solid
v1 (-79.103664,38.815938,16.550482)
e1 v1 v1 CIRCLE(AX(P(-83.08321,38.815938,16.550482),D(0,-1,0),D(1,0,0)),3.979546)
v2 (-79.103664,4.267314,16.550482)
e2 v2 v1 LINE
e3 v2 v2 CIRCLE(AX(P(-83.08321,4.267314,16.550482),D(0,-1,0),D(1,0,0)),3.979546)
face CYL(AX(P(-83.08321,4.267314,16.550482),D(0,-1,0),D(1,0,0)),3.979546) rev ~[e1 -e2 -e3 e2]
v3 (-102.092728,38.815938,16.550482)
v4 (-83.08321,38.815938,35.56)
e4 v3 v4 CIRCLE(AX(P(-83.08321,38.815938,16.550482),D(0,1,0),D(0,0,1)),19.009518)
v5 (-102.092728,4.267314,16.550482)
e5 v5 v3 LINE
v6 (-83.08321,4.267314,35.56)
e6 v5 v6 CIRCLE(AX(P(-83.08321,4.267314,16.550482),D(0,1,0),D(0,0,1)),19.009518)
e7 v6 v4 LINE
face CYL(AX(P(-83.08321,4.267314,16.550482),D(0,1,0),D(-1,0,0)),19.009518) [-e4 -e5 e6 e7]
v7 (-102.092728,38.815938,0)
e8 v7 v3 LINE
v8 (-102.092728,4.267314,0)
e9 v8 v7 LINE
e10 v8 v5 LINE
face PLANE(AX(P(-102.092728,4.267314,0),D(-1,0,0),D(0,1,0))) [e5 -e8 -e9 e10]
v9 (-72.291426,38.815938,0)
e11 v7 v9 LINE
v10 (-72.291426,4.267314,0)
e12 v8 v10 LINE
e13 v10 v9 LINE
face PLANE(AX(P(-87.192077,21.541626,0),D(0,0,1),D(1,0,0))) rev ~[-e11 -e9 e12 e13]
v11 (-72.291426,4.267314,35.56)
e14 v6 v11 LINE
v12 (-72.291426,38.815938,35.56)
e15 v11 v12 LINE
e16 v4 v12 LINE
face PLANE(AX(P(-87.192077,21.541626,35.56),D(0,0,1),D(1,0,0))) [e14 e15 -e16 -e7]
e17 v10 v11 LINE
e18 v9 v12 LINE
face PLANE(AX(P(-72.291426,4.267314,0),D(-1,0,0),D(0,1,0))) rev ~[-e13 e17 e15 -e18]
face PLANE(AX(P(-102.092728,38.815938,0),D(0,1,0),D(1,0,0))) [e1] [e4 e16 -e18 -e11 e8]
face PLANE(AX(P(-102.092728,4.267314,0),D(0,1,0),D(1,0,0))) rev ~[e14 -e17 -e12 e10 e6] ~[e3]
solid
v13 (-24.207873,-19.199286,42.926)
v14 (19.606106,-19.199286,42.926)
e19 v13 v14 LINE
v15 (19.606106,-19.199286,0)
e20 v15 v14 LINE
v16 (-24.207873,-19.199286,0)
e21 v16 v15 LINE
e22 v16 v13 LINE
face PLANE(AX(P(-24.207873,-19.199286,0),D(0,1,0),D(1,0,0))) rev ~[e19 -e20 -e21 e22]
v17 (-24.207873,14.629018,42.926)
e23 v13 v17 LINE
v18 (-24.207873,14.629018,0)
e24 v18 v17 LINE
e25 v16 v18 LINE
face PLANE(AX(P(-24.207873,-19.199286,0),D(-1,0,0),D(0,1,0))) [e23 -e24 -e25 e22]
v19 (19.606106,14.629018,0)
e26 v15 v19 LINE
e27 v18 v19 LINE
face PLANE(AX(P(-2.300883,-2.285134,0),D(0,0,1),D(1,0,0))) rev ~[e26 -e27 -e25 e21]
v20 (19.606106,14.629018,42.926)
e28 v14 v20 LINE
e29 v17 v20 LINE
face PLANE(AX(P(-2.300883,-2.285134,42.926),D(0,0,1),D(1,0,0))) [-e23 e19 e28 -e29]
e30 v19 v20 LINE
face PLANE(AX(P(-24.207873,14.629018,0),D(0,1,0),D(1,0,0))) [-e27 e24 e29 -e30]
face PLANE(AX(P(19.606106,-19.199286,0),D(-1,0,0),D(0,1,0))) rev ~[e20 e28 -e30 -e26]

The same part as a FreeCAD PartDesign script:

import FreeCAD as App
import Part
import Sketcher
from FreeCAD import Vector
Q = App.Units.Quantity


def edges_at(feature, points):
    """Names of the edges that pass closest to the given points."""
    edges = feature.Shape.Edges
    near = lambda p: min(range(len(edges)), key=lambda i: edges[i].distToShape(Part.Vertex(*p))[0])
    return sorted({f"Edge{near(p) + 1}" for p in points})


def add_polygon(sketch, points):
    """Adds a closed chain of lines whose ends are joined by coincident constraints."""
    first, n = sketch.GeometryCount, len(points)
    for a, b in zip(points, points[1:] + points[:1]):
        sketch.addGeometry(Part.LineSegment(App.Vector(*a, 0), App.Vector(*b, 0)), False)
    for i in range(n):
        sketch.addConstraint(Sketcher.Constraint("Coincident", first + i, 2, first + (i + 1) % n, 1))

doc = App.newDocument("Part")
body = doc.addObject("PartDesign::Body", "Body")

sketch1 = body.newObject("Sketcher::SketchObject", "Sketch")
sketch1.AttachmentSupport = (doc.getObject("XY_Plane"), [""])
sketch1.MapMode = "FlatFace"
add_polygon(sketch1, [(-102, 39), (-102, 4), (-72, 4), (-72, 39)])
sketch1.addConstraint(Sketcher.Constraint("Vertical", 0))
sketch1.addConstraint(Sketcher.Constraint("Horizontal", 1))
sketch1.addConstraint(Sketcher.Constraint("Vertical", 2))
sketch1.addConstraint(Sketcher.Constraint("Horizontal", 3))
sketch1.addConstraint(Sketcher.Constraint("DistanceX", 1, 1, 1, 2, 29.801302))
sketch1.addConstraint(Sketcher.Constraint("DistanceY", 0, 2, 0, 1, 34.548624))
sketch1.addConstraint(Sketcher.Constraint("DistanceY", -1, 1, 2, 2, 38.815938))
sketch1.addConstraint(Sketcher.Constraint("DistanceX", 0, 2, -1, 1, 102.092728))
pad1 = body.newObject("PartDesign::Pad", "Pad")
pad1.Profile = sketch1
pad1.Length = Q("1.4 in")
doc.recompute()

fillet = body.newObject("PartDesign::Fillet", "Fillet")
fillet.Base = (pad1, edges_at(pad1, [(-102.093, 21.542, 35.56)]))
fillet.Radius = 19.009518

sketch2 = body.newObject("Sketcher::SketchObject", "Sketch001")
sketch2.AttachmentSupport = (doc.getObject("XZ_Plane"), [""])
sketch2.MapMode = "FlatFace"
sketch2.AttachmentOffset = App.Placement(Vector(0, 0, -4.267314), App.Rotation())
sketch2.addGeometry(Part.Circle(Vector(-83.1, 16.6, 0), Vector(0, 0, 1), 4), False)
sketch2.addConstraint(Sketcher.Constraint("Diameter", 0, 7.959092))
sketch2.addConstraint(Sketcher.Constraint("DistanceX", 0, 3, -1, 1, 83.08321))
sketch2.addConstraint(Sketcher.Constraint("DistanceY", -1, 1, 0, 3, 16.550482))
pocket1 = body.newObject("PartDesign::Pocket", "Pocket")
pocket1.Profile = sketch2
pocket1.Type = "ThroughAll"
body2 = doc.addObject("PartDesign::Body", "Body001")

sketch3 = body2.newObject("Sketcher::SketchObject", "Sketch002")
sketch3.AttachmentSupport = (doc.getObject("XY_Plane001"), [""])
sketch3.MapMode = "FlatFace"
add_polygon(sketch3, [(-24, 15), (-24, -19), (20, -19), (20, 15)])
sketch3.addConstraint(Sketcher.Constraint("Vertical", 0))
sketch3.addConstraint(Sketcher.Constraint("Horizontal", 1))
sketch3.addConstraint(Sketcher.Constraint("Vertical", 2))
sketch3.addConstraint(Sketcher.Constraint("Horizontal", 3))
sketch3.addConstraint(Sketcher.Constraint("DistanceX", 1, 1, 1, 2, 43.813979))
sketch3.addConstraint(Sketcher.Constraint("DistanceY", 0, 2, 0, 1, 33.828304))
sketch3.addConstraint(Sketcher.Constraint("DistanceX", 0, 2, -1, 1, 24.207873))
sketch3.addConstraint(Sketcher.Constraint("DistanceY", 0, 2, -1, 1, 19.199286))
pad2 = body2.newObject("PartDesign::Pad", "Pad001")
pad2.Profile = sketch3
pad2.Length = Q("1.69 in")

doc.recompute()
